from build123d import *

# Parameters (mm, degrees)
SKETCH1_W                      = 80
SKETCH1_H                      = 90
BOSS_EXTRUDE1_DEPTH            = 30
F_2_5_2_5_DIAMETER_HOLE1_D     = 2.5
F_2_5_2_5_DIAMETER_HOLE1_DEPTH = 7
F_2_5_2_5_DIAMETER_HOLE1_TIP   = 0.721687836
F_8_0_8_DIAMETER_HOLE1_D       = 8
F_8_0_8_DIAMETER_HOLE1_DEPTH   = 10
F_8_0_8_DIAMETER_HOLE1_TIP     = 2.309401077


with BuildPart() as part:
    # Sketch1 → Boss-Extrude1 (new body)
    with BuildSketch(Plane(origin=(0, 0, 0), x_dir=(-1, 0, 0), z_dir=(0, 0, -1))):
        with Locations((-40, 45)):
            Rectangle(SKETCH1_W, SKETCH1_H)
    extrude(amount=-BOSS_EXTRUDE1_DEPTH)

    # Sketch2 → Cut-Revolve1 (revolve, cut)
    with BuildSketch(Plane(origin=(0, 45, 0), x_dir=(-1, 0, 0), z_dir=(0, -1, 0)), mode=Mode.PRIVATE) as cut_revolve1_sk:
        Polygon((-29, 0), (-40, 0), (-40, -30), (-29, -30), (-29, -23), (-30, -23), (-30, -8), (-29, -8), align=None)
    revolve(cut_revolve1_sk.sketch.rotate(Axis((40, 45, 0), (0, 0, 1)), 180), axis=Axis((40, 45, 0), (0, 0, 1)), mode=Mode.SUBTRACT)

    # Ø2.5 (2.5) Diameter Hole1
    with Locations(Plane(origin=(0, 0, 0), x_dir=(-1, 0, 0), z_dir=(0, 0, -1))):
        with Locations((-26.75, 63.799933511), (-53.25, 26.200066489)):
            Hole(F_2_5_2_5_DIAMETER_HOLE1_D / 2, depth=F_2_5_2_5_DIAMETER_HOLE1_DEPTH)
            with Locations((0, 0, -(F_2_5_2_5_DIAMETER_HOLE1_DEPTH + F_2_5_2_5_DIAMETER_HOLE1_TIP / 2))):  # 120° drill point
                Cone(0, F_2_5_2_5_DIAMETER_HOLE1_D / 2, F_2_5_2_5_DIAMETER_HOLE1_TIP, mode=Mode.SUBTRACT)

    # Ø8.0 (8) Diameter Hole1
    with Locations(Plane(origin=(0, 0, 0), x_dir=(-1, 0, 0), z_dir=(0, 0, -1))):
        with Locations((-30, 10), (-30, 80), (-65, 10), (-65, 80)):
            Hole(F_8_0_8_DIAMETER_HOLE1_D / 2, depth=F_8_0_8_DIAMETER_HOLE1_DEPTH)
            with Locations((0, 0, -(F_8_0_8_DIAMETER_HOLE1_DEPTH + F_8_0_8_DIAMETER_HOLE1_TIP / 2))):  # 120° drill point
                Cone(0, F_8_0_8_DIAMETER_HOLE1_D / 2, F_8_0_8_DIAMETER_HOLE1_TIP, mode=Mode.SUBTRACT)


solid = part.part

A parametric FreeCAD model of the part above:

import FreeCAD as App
import Part
import Sketcher

V = App.Vector
Q = App.Units.Quantity

doc = App.newDocument("Part")
body = doc.addObject("PartDesign::Body", "Body")

sketch1 = doc.addObject("Sketcher::SketchObject", "Sketch")
body.addObject(sketch1)
sketch1.AttachmentSupport = (doc.XY_Plane, [""])
sketch1.MapMode = "FlatFace"
sketch1.addGeometry(Part.LineSegment(V(80, 90, 0), V(80, 0, 0)), False)
sketch1.addGeometry(Part.LineSegment(V(80, 0, 0), V(0, 0, 0)), False)
sketch1.addGeometry(Part.LineSegment(V(0, 0, 0), V(0, 90, 0)), False)
sketch1.addGeometry(Part.LineSegment(V(0, 90, 0), V(80, 90, 0)), False)
sketch1.addConstraint(Sketcher.Constraint("Coincident", 0, 2, 1, 1))
sketch1.addConstraint(Sketcher.Constraint("Coincident", 1, 2, 2, 1))
sketch1.addConstraint(Sketcher.Constraint("Coincident", 2, 2, 3, 1))
sketch1.addConstraint(Sketcher.Constraint("Coincident", 3, 2, 0, 1))
sketch1.addConstraint(Sketcher.Constraint("Vertical", 0))
sketch1.addConstraint(Sketcher.Constraint("Horizontal", 1))
sketch1.addConstraint(Sketcher.Constraint("Vertical", 2))
sketch1.addConstraint(Sketcher.Constraint("Horizontal", 3))
sketch1.addConstraint(Sketcher.Constraint("Coincident", 1, 2, -1, 1))
sketch1.addConstraint(Sketcher.Constraint("DistanceX", 1, 2, 1, 1, Q("80 mm")))
sketch1.addConstraint(Sketcher.Constraint("DistanceY", 0, 2, 0, 1, Q("90 mm")))
pad1 = doc.addObject("PartDesign::Pad", "Pad")
body.addObject(pad1)
pad1.Profile = sketch1
pad1.Length = 30

sketch2 = doc.addObject("Sketcher::SketchObject", "Sketch001")
body.addObject(sketch2)
sketch2.AttachmentSupport = (doc.XZ_Plane, [""])
sketch2.MapMode = "FlatFace"
sketch2.AttachmentOffset = App.Placement(V(0, 0, -45), App.Rotation())
sketch2.addGeometry(Part.LineSegment(V(29, 0, 0), V(40, 0, 0)), False)
sketch2.addGeometry(Part.LineSegment(V(40, 0, 0), V(40, 30, 0)), False)
sketch2.addGeometry(Part.LineSegment(V(40, 30, 0), V(29, 30, 0)), False)
sketch2.addGeometry(Part.LineSegment(V(29, 30, 0), V(29, 23, 0)), False)
sketch2.addGeometry(Part.LineSegment(V(29, 23, 0), V(30, 23, 0)), False)
sketch2.addGeometry(Part.LineSegment(V(30, 23, 0), V(30, 8, 0)), False)
sketch2.addGeometry(Part.LineSegment(V(30, 8, 0), V(29, 8, 0)), False)
sketch2.addGeometry(Part.LineSegment(V(29, 8, 0), V(29, 0, 0)), False)
sketch2.addGeometry(Part.LineSegment(V(40, 0, 0), V(40, 30, 0)), True)
sketch2.addConstraint(Sketcher.Constraint("Coincident", 0, 2, 1, 1))
sketch2.addConstraint(Sketcher.Constraint("Coincident", 1, 2, 2, 1))
sketch2.addConstraint(Sketcher.Constraint("Coincident", 2, 2, 3, 1))
sketch2.addConstraint(Sketcher.Constraint("Coincident", 3, 2, 4, 1))
sketch2.addConstraint(Sketcher.Constraint("Coincident", 4, 2, 5, 1))
sketch2.addConstraint(Sketcher.Constraint("Coincident", 5, 2, 6, 1))
sketch2.addConstraint(Sketcher.Constraint("Coincident", 6, 2, 7, 1))
sketch2.addConstraint(Sketcher.Constraint("Coincident", 7, 2, 0, 1))
sketch2.addConstraint(Sketcher.Constraint("Horizontal", 0))
sketch2.addConstraint(Sketcher.Constraint("Vertical", 1))
sketch2.addConstraint(Sketcher.Constraint("Horizontal", 2))
sketch2.addConstraint(Sketcher.Constraint("Vertical", 3))
sketch2.addConstraint(Sketcher.Constraint("Horizontal", 4))
sketch2.addConstraint(Sketcher.Constraint("Vertical", 5))
sketch2.addConstraint(Sketcher.Constraint("Horizontal", 6))
sketch2.addConstraint(Sketcher.Constraint("Vertical", 7))
sketch2.addConstraint(Sketcher.Constraint("Vertical", 8))
sketch2.addConstraint(Sketcher.Constraint("Coincident", 8, 1, 0, 2))
sketch2.addConstraint(Sketcher.Constraint("PointOnObject", 0, 2, -1))
sketch2.addConstraint(Sketcher.Constraint("Horizontal", 2, 2, 8, 2))
sketch2.addConstraint(Sketcher.Constraint("Vertical", 3, 2, 6, 2))
sketch2.addConstraint(Sketcher.Constraint("DistanceX", 0, 1, 0, 2, Q("11 mm")))
sketch2.addConstraint(Sketcher.Constraint("DistanceX", 4, 1, 4, 2, Q("1 mm")))
sketch2.addConstraint(Sketcher.Constraint("DistanceY", 1, 1, 1, 2, Q("30 mm")))
sketch2.addConstraint(Sketcher.Constraint("DistanceY", 3, 2, 3, 1, Q("7 mm")))
sketch2.addConstraint(Sketcher.Constraint("DistanceY", 5, 2, 5, 1, Q("15 mm")))
sketch2.addConstraint(Sketcher.Constraint("DistanceX", -1, 1, 0, 2, Q("40 mm")))
groove = doc.addObject("PartDesign::Groove", "Groove")
body.addObject(groove)
groove.Profile = sketch2
groove.ReferenceAxis = (sketch2, ["Axis0"])
groove.Angle = 360

sketch3 = doc.addObject("Sketcher::SketchObject", "Sketch002")
body.addObject(sketch3)
sketch3.AttachmentSupport = (doc.XY_Plane, [""])
sketch3.MapMode = "FlatFace"
sketch3.addGeometry(Part.Circle(V(26.8, 63.8, 0), V(0, 0, 1), 1.2), False)
sketch3.addGeometry(Part.Circle(V(53.2, 26.2, 0), V(0, 0, 1), 1.2), False)
sketch3.addConstraint(Sketcher.Constraint("Equal", 0, 1))
sketch3.addConstraint(Sketcher.Constraint("Diameter", 0, Q("2.5 mm")))
sketch3.addConstraint(Sketcher.Constraint("DistanceX", 0, 3, 1, 3, Q("26.5 mm")))
sketch3.addConstraint(Sketcher.Constraint("DistanceX", -1, 1, 0, 3, Q("26.75 mm")))
sketch3.addConstraint(Sketcher.Constraint("DistanceY", -1, 1, 0, 3, Q("63.799934 mm")))
sketch3.addConstraint(Sketcher.Constraint("DistanceY", -1, 1, 1, 3, Q("26.200066 mm")))
doc.recompute()
hole = doc.addObject("PartDesign::Hole", "Hole")
body.addObject(hole)
hole.Profile = sketch3
hole.ThreadType = "None"
hole.Diameter = 2.5
hole.DepthType = "Dimension"
hole.Depth = 7
hole.DrillPoint = "Angled"
hole.DrillPointAngle = 120
hole.Reversed = True

sketch4 = doc.addObject("Sketcher::SketchObject", "Sketch003")
body.addObject(sketch4)
sketch4.AttachmentSupport = (doc.XY_Plane, [""])
sketch4.MapMode = "FlatFace"
sketch4.addGeometry(Part.Circle(V(30, 10, 0), V(0, 0, 1), 4), False)
sketch4.addGeometry(Part.Circle(V(30, 80, 0), V(0, 0, 1), 4), False)
sketch4.addGeometry(Part.Circle(V(65, 10, 0), V(0, 0, 1), 4), False)
sketch4.addGeometry(Part.Circle(V(65, 80, 0), V(0, 0, 1), 4), False)
sketch4.addConstraint(Sketcher.Constraint("Equal", 0, 1))
sketch4.addConstraint(Sketcher.Constraint("Equal", 1, 2))
sketch4.addConstraint(Sketcher.Constraint("Equal", 2, 3))
sketch4.addConstraint(Sketcher.Constraint("Horizontal", 0, 3, 2, 3))
sketch4.addConstraint(Sketcher.Constraint("Horizontal", 1, 3, 3, 3))
sketch4.addConstraint(Sketcher.Constraint("Vertical", 0, 3, 1, 3))
sketch4.addConstraint(Sketcher.Constraint("Vertical", 2, 3, 3, 3))
sketch4.addConstraint(Sketcher.Constraint("Diameter", 0, Q("8 mm")))
sketch4.addConstraint(Sketcher.Constraint("DistanceX", -1, 1, 0, 3, Q("30 mm")))
sketch4.addConstraint(Sketcher.Constraint("DistanceY", -1, 1, 0, 3, Q("10 mm")))
sketch4.addConstraint(Sketcher.Constraint("DistanceY", -1, 1, 1, 3, Q("80 mm")))
sketch4.addConstraint(Sketcher.Constraint("DistanceX", -1, 1, 2, 3, Q("65 mm")))
doc.recompute()
hole2 = doc.addObject("PartDesign::Hole", "Hole001")
body.addObject(hole2)
hole2.Profile = sketch4
hole2.ThreadType = "None"
hole2.Diameter = 8
hole2.DepthType = "Dimension"
hole2.Depth = 10
hole2.DrillPoint = "Angled"
hole2.DrillPointAngle = 120
hole2.Reversed = True

doc.recompute()
